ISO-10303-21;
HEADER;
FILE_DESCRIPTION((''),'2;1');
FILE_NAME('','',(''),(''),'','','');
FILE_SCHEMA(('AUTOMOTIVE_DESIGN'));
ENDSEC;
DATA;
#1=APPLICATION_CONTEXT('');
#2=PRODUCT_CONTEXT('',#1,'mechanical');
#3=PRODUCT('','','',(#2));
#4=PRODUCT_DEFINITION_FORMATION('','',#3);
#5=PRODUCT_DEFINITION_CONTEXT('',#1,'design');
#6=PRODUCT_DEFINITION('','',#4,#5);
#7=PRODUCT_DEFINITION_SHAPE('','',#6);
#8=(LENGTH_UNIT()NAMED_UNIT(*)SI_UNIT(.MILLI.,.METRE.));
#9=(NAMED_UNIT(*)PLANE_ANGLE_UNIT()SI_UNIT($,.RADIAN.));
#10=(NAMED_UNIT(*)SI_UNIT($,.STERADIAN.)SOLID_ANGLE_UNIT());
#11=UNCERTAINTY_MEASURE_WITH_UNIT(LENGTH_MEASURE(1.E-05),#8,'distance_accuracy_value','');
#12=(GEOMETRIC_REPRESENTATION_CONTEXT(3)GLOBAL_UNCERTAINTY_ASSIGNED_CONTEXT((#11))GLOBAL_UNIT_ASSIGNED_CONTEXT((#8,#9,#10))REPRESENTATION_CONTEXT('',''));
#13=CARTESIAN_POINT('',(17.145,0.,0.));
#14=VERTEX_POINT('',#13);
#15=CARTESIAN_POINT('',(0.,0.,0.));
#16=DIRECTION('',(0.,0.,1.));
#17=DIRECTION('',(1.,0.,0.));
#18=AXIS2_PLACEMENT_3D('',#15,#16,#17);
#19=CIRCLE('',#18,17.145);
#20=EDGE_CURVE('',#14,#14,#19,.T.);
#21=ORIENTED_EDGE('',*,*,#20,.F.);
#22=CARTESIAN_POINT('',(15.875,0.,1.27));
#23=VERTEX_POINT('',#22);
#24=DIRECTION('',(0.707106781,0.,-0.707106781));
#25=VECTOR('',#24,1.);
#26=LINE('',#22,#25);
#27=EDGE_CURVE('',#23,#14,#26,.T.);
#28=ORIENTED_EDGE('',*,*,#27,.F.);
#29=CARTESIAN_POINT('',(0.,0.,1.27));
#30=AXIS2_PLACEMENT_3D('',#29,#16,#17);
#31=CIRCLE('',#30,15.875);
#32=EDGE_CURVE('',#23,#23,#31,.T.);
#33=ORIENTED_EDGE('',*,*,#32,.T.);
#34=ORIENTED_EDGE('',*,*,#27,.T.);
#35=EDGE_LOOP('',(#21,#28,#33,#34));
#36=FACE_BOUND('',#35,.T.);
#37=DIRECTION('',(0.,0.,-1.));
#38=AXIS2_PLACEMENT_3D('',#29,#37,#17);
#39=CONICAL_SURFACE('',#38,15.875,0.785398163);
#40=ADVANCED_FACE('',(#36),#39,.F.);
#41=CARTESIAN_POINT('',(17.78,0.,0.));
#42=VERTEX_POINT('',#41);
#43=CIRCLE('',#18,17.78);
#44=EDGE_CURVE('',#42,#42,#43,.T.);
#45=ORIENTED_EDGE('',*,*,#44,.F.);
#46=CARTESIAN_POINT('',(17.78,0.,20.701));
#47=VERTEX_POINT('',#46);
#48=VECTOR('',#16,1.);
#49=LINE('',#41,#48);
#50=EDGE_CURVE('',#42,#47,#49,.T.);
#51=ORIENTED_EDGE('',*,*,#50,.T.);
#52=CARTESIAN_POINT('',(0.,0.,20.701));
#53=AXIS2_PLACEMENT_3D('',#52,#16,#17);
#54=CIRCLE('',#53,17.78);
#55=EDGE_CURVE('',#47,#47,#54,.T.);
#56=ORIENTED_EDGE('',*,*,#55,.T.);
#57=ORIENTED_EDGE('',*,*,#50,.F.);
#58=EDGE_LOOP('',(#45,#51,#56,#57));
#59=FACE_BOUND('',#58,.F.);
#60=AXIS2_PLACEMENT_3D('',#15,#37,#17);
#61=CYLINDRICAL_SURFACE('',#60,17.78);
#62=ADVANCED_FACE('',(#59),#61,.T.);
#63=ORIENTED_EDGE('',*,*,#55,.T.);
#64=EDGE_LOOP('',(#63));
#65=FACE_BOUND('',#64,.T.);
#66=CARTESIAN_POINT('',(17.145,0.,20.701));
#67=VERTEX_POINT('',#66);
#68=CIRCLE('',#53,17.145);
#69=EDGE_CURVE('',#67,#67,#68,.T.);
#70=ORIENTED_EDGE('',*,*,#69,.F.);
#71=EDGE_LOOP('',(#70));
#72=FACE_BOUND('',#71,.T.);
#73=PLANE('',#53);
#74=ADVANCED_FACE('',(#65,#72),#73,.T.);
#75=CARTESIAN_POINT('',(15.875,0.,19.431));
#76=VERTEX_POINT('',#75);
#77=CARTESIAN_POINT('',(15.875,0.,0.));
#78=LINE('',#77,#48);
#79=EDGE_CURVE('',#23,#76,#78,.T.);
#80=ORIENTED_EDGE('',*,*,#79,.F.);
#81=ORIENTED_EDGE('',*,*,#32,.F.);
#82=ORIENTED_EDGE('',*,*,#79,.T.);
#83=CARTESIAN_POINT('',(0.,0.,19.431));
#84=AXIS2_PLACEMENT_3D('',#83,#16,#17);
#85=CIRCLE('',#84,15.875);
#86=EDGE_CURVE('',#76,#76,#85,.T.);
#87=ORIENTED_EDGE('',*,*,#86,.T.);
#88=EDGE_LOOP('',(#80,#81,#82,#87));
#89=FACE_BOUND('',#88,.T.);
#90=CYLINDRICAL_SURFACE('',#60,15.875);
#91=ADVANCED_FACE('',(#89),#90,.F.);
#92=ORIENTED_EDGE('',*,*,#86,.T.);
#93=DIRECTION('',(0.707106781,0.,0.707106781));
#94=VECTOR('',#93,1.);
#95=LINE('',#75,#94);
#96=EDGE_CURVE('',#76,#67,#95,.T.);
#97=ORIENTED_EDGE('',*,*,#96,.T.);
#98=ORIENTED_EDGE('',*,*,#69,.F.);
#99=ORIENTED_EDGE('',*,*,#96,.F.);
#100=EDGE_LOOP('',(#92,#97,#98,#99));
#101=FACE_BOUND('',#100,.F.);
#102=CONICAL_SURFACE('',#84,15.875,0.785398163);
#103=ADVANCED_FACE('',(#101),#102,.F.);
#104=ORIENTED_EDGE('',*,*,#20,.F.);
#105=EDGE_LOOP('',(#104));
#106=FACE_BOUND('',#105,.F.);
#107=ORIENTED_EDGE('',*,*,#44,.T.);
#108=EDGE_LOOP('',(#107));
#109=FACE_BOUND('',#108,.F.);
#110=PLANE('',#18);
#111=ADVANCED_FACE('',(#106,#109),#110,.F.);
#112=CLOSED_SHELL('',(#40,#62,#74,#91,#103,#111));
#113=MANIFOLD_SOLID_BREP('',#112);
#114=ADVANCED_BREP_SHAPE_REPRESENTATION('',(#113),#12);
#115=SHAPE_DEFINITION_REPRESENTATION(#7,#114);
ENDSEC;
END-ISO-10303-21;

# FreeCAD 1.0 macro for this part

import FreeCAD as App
import Part
import Sketcher
from FreeCAD import Vector
Q = App.Units.Quantity


def edges_at(feature, points):
    """Names of the edges that pass closest to the given points."""
    edges = feature.Shape.Edges
    near = lambda p: min(range(len(edges)), key=lambda i: edges[i].distToShape(Part.Vertex(*p))[0])
    return sorted({f"Edge{near(p) + 1}" for p in points})

doc = App.newDocument("Part")
body = doc.addObject("PartDesign::Body", "Body")

# Sketch on XY plane
sketch1 = body.newObject("Sketcher::SketchObject", "Sketch")
sketch1.AttachmentSupport = (doc.getObject("XY_Plane"), [""])
sketch1.MapMode = "FlatFace"
sketch1.addGeometry(Part.Circle(Vector(0, 0, 0), Vector(0, 0, 1), 18), False)
sketch1.addGeometry(Part.Circle(Vector(0, 0, 0), Vector(0, 0, 1), 16), False)
sketch1.addConstraint(Sketcher.Constraint("Coincident", 0, 3, -1, 1))
sketch1.addConstraint(Sketcher.Constraint("Coincident", 1, 3, -1, 1))
sketch1.addConstraint(Sketcher.Constraint("Diameter", 1, Q("1.25 in")))
sketch1.addConstraint(Sketcher.Constraint("Diameter", 0, Q("1.4 in")))
pad1 = body.newObject("PartDesign::Pad", "Pad")
pad1.Profile = sketch1
pad1.Length = Q("0.815 in")
doc.recompute()

chamfer = body.newObject("PartDesign::Chamfer", "Chamfer")
chamfer.Base = (pad1, edges_at(pad1, [(-15.875, 0, 20.701), (-15.875, 0, 0)]))
chamfer.Size = Q("0.05 in")

doc.recompute()
